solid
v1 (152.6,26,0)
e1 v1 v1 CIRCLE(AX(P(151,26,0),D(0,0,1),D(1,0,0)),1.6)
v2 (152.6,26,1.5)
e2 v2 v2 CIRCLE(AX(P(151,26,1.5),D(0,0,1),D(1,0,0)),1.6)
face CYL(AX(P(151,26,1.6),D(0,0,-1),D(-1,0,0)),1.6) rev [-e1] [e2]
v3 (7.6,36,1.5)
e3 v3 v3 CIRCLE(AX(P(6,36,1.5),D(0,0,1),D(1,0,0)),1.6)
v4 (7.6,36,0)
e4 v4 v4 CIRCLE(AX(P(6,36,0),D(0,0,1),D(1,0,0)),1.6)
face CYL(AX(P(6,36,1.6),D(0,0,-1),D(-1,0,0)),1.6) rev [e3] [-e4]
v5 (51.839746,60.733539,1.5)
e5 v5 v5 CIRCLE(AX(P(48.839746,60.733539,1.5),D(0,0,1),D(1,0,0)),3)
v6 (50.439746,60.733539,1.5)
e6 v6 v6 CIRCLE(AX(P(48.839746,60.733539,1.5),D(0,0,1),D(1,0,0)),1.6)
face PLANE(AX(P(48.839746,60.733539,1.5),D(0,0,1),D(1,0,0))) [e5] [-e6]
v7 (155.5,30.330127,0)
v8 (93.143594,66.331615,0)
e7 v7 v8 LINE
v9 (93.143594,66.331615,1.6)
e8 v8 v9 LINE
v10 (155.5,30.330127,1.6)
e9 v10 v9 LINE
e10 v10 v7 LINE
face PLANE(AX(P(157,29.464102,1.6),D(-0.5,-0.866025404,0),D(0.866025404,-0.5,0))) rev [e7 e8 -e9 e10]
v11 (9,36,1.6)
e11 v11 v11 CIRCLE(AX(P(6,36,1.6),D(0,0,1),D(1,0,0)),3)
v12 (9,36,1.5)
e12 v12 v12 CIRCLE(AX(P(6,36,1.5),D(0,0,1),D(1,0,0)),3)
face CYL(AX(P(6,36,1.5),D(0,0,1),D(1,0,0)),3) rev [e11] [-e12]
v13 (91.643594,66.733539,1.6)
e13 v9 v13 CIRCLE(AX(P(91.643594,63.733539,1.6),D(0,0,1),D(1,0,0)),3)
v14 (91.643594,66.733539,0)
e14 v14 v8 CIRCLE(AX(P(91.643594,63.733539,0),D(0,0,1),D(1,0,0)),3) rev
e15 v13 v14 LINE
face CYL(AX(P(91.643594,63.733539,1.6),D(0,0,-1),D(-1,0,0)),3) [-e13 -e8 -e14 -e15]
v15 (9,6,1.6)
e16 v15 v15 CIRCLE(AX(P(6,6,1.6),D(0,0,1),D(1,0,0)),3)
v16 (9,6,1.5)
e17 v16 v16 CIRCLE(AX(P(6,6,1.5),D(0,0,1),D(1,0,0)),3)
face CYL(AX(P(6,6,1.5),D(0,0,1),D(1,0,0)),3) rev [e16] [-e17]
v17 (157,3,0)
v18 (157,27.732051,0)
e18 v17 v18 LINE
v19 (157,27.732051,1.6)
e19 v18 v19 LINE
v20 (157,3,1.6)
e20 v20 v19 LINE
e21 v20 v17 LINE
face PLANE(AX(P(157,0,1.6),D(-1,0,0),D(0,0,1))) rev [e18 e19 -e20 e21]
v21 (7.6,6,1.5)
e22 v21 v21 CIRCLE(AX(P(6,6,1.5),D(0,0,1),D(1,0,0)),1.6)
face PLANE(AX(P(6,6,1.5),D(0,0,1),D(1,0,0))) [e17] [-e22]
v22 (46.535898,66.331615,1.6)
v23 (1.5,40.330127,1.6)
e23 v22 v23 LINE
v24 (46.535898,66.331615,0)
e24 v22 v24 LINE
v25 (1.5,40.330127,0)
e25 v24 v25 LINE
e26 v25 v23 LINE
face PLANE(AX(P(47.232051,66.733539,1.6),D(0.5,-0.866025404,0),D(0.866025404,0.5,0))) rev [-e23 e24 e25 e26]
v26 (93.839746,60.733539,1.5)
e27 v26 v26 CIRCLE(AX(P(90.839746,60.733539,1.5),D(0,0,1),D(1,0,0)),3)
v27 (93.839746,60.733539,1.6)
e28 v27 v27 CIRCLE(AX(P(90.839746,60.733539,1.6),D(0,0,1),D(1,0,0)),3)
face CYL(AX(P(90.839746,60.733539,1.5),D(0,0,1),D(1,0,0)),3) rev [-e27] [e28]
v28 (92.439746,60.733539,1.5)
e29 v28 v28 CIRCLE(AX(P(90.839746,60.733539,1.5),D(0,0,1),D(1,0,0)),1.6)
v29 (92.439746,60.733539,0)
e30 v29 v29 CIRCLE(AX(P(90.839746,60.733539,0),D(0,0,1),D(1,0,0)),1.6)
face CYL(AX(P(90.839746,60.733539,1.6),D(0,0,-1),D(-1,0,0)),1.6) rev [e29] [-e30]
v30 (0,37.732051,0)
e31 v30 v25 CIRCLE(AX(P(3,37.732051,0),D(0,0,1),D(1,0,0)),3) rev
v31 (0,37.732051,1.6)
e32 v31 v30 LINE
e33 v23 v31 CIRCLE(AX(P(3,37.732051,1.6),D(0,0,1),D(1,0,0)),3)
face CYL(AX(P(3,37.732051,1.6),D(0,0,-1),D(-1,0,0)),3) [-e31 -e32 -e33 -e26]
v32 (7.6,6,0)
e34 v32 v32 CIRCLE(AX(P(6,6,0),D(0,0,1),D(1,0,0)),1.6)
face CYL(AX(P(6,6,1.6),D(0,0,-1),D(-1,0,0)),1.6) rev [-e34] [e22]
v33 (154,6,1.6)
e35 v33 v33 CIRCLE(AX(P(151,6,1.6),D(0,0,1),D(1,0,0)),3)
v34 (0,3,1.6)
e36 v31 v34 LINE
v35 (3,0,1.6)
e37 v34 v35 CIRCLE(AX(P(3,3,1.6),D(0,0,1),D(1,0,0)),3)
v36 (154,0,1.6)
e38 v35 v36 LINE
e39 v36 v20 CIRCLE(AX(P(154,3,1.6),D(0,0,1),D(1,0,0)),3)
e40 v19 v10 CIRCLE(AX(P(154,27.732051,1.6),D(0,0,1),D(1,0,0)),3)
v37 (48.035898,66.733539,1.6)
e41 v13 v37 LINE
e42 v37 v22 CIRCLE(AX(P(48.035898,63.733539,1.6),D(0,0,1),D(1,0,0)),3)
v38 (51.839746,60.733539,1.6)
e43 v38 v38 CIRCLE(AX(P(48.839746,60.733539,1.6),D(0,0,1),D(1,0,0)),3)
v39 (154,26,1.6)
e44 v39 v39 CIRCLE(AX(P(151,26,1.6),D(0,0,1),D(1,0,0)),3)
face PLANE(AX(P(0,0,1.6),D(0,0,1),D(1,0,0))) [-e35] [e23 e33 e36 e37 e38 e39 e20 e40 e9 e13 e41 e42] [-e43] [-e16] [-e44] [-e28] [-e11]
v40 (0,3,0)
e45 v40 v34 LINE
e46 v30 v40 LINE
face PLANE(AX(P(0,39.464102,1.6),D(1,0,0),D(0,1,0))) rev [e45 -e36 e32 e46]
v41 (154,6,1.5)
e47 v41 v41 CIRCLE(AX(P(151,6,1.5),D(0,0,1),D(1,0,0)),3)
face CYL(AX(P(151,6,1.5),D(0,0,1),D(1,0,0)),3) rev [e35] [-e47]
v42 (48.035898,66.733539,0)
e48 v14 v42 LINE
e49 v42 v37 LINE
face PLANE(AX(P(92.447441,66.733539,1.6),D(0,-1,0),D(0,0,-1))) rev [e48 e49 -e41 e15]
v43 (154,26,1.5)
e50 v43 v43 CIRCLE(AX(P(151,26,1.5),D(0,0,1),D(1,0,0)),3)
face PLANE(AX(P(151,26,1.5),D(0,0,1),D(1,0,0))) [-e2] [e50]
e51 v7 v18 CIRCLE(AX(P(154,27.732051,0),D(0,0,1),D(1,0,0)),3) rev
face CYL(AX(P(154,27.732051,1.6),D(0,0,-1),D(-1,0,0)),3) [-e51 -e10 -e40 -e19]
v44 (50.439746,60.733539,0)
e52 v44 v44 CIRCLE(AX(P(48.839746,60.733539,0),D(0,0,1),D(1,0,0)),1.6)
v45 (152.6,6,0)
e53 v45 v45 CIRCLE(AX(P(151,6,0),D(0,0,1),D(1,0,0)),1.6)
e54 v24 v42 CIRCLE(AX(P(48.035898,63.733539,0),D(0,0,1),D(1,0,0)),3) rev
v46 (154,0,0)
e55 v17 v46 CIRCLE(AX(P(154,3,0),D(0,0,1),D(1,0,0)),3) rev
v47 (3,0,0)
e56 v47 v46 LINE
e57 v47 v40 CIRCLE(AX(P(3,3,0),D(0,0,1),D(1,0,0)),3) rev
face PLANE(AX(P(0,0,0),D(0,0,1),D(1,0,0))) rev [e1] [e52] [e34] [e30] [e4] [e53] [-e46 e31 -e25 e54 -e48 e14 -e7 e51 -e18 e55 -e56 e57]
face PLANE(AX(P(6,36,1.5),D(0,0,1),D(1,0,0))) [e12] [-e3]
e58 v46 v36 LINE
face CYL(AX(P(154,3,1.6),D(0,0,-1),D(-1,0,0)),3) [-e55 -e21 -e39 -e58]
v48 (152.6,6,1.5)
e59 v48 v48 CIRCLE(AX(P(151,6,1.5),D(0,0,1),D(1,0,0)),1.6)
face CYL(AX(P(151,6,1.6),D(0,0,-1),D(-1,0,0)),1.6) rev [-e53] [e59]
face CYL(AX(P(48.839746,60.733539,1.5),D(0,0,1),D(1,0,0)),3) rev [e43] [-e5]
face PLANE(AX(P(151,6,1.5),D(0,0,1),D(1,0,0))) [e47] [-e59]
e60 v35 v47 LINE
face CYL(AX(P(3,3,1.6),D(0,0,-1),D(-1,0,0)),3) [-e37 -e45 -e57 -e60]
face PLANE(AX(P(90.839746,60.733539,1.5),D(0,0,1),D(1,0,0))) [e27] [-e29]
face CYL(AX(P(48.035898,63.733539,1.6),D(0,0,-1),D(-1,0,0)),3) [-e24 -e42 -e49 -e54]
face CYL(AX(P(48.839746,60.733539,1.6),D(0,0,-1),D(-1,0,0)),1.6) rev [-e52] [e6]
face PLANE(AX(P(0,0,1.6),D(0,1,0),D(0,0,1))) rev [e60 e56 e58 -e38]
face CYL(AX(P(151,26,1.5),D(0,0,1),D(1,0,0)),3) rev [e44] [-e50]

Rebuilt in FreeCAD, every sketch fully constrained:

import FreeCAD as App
import Part
import Sketcher

V = App.Vector
Q = App.Units.Quantity


def edges_at(feature, points):
    """Names of the edges that pass closest to the given points."""
    edges = feature.Shape.Edges
    near = lambda p: min(range(len(edges)), key=lambda i: edges[i].distToShape(Part.Vertex(*p))[0])
    return sorted({f"Edge{near(p) + 1}" for p in points})


def add_polygon(sketch, points):
    """Adds a closed chain of lines whose ends are joined by coincident constraints."""
    first, n = sketch.GeometryCount, len(points)
    for a, b in zip(points, points[1:] + points[:1]):
        sketch.addGeometry(Part.LineSegment(App.Vector(*a, 0), App.Vector(*b, 0)), False)
    for i in range(n):
        sketch.addConstraint(Sketcher.Constraint("Coincident", first + i, 2, first + (i + 1) % n, 1))

doc = App.newDocument("Part")
body = doc.addObject("PartDesign::Body", "Body")

# Sketch on XY plane
sketch1 = body.newObject("Sketcher::SketchObject", "Sketch")
sketch1.AttachmentSupport = (doc.getObject("XY_Plane"), [""])
sketch1.MapMode = "FlatFace"
add_polygon(sketch1, [(0, 0), (157, 0), (157, 29.464102), (92.447441, 66.733539), (47.232051, 66.733539), (0, 39.464102)])  # lines 0-5
sketch1.addGeometry(Part.Circle(V(6, 6, 0), V(0, 0, 1), 1.6), False)  # 6
sketch1.addGeometry(Part.Circle(V(151, 6, 0), V(0, 0, 1), 1.6), False)  # 7
sketch1.addGeometry(Part.Circle(V(151, 26, 0), V(0, 0, 1), 1.6), False)  # 8
sketch1.addGeometry(Part.Circle(V(6, 36, 0), V(0, 0, 1), 1.6), False)  # 9
sketch1.addGeometry(Part.Circle(V(48.839746, 60.733539, 0), V(0, 0, 1), 1.6), False)  # 10
sketch1.addGeometry(Part.Circle(V(90.839746, 60.733539, 0), V(0, 0, 1), 1.6), False)  # 11
sketch1.addConstraint(Sketcher.Constraint("Horizontal", 0))
sketch1.addConstraint(Sketcher.Constraint("Vertical", 1))
sketch1.addConstraint(Sketcher.Constraint("Horizontal", 3))
sketch1.addConstraint(Sketcher.Constraint("Vertical", 5))
sketch1.addConstraint(Sketcher.Constraint("Coincident", 5, 2, -1, 1))
sketch1.addConstraint(Sketcher.Constraint("Equal", 6, 7))
sketch1.addConstraint(Sketcher.Constraint("Equal", 7, 8))
sketch1.addConstraint(Sketcher.Constraint("Equal", 8, 9))
sketch1.addConstraint(Sketcher.Constraint("Equal", 9, 10))
sketch1.addConstraint(Sketcher.Constraint("Equal", 10, 11))
sketch1.addConstraint(Sketcher.Constraint("Horizontal", 6, 3, 7, 3))
sketch1.addConstraint(Sketcher.Constraint("Horizontal", 10, 3, 11, 3))
sketch1.addConstraint(Sketcher.Constraint("Vertical", 7, 3, 8, 3))
sketch1.addConstraint(Sketcher.Constraint("Vertical", 6, 3, 9, 3))
sketch1.addConstraint(Sketcher.Constraint("Diameter", 6, 3.2))
sketch1.addConstraint(Sketcher.Constraint("DistanceX", 0, 1, 0, 2, 157.0))
sketch1.addConstraint(Sketcher.Constraint("Angle", 2, Q("150 deg")))
sketch1.addConstraint(Sketcher.Constraint("Angle", 4, Q("-150 deg")))
sketch1.addConstraint(Sketcher.Constraint("DistanceX", -1, 1, 6, 3, 6.0))
sketch1.addConstraint(Sketcher.Constraint("DistanceY", -1, 1, 6, 3, 6.0))
sketch1.addConstraint(Sketcher.Constraint("DistanceX", -1, 1, 7, 3, 151.0))
sketch1.addConstraint(Sketcher.Constraint("DistanceY", -1, 1, 8, 3, 26.0))
sketch1.addConstraint(Sketcher.Constraint("DistanceY", -1, 1, 9, 3, 36.0))
sketch1.addConstraint(Sketcher.Constraint("DistanceX", 10, 3, 11, 3, 42.0))
sketch1.addConstraint(Sketcher.Constraint("DistanceY", 11, 3, 2, 2, 6.0))
sketch1.addConstraint(Sketcher.Constraint("DistanceY", 1, 1, 1, 2, 29.464102))
sketch1.addConstraint(Sketcher.Constraint("DistanceY", 5, 2, 5, 1, 39.464102))
sketch1.addConstraint(Sketcher.Constraint("DistanceX", 3, 2, 3, 1, 45.21539))
sketch1.addConstraint(Sketcher.Constraint("DistanceX", -1, 1, 10, 3, 48.839746))
pad1 = body.newObject("PartDesign::Pad", "Pad")
pad1.Profile = sketch1
pad1.Length = 1.6
doc.recompute()

fillet = body.newObject("PartDesign::Fillet", "Fillet")
fillet.Base = (pad1, edges_at(pad1, [
    (0, 39.464, 0.8),
    (47.232, 66.734, 0.8),
    (92.447, 66.734, 0.8),
    (157, 29.464, 0.8),
    (157, 0, 0.8),
    (0, 0, 0.8),
]))
fillet.Radius = 3

# Sketch on XY plane
sketch2 = body.newObject("Sketcher::SketchObject", "Sketch001")
sketch2.AttachmentSupport = (doc.getObject("XY_Plane"), [""])
sketch2.MapMode = "FlatFace"
sketch2.AttachmentOffset = App.Placement(V(0, 0, 1.6), App.Rotation())
sketch2.addGeometry(Part.Circle(V(6, 6, 0), V(0, 0, 1), 3), False)
sketch2.addGeometry(Part.Circle(V(6, 36, 0), V(0, 0, 1), 3), False)
sketch2.addGeometry(Part.Circle(V(48.839746, 60.733539, 0), V(0, 0, 1), 3), False)
sketch2.addGeometry(Part.Circle(V(90.839746, 60.733539, 0), V(0, 0, 1), 3), False)
sketch2.addGeometry(Part.Circle(V(151, 26, 0), V(0, 0, 1), 3), False)
sketch2.addGeometry(Part.Circle(V(151, 6, 0), V(0, 0, 1), 3), False)
sketch2.addConstraint(Sketcher.Constraint("Equal", 0, 1))
sketch2.addConstraint(Sketcher.Constraint("Equal", 1, 2))
sketch2.addConstraint(Sketcher.Constraint("Equal", 2, 3))
sketch2.addConstraint(Sketcher.Constraint("Equal", 3, 4))
sketch2.addConstraint(Sketcher.Constraint("Equal", 4, 5))
sketch2.addConstraint(Sketcher.Constraint("Horizontal", 2, 3, 3, 3))
sketch2.addConstraint(Sketcher.Constraint("Horizontal", 0, 3, 5, 3))
sketch2.addConstraint(Sketcher.Constraint("Vertical", 0, 3, 1, 3))
sketch2.addConstraint(Sketcher.Constraint("Vertical", 4, 3, 5, 3))
sketch2.addConstraint(Sketcher.Constraint("Diameter", 0, 6.0))
sketch2.addConstraint(Sketcher.Constraint("DistanceX", -1, 1, 0, 3, 6.0))
sketch2.addConstraint(Sketcher.Constraint("DistanceY", -1, 1, 0, 3, 6.0))
sketch2.addConstraint(Sketcher.Constraint("DistanceY", -1, 1, 1, 3, 36.0))
sketch2.addConstraint(Sketcher.Constraint("DistanceX", -1, 1, 4, 3, 151.0))
sketch2.addConstraint(Sketcher.Constraint("DistanceY", -1, 1, 4, 3, 26.0))
sketch2.addConstraint(Sketcher.Constraint("DistanceX", 2, 3, 3, 3, 42.0))
sketch2.addConstraint(Sketcher.Constraint("DistanceY", -1, 1, 2, 3, 60.733539))
sketch2.addConstraint(Sketcher.Constraint("DistanceX", -1, 1, 2, 3, 48.839746))
pocket1 = body.newObject("PartDesign::Pocket", "Pocket")
pocket1.Profile = sketch2
pocket1.Length = 0.1

doc.recompute()
